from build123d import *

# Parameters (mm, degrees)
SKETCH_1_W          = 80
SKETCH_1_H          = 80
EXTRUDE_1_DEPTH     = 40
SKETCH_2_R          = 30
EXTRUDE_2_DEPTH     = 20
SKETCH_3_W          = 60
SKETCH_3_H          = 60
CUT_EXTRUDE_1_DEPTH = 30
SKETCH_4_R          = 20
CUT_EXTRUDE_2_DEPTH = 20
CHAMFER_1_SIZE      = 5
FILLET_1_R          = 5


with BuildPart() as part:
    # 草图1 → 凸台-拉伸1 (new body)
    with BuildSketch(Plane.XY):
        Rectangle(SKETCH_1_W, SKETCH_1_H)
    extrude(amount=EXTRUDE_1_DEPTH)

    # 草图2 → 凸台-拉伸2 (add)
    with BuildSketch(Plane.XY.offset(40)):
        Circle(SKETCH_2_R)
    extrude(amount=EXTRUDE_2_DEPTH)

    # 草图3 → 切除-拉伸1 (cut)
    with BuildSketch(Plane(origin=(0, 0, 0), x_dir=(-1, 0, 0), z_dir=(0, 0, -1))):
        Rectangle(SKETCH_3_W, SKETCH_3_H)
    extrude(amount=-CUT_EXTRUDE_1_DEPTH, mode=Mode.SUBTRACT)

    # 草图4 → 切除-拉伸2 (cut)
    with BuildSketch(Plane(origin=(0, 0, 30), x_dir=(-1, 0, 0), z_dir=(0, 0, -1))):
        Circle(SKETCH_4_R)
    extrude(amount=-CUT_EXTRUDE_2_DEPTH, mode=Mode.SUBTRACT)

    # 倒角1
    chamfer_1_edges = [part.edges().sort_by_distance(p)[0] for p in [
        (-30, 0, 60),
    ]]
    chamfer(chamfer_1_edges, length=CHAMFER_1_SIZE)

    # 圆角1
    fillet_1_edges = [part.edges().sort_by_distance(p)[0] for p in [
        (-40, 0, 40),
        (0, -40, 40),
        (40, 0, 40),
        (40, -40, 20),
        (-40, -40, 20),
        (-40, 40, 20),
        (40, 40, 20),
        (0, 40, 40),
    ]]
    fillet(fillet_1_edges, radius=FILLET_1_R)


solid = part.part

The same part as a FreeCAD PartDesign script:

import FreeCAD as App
import Part
import Sketcher


def edges_at(feature, points):
    """Names of the edges that pass closest to the given points."""
    edges = feature.Shape.Edges
    near = lambda p: min(range(len(edges)), key=lambda i: edges[i].distToShape(Part.Vertex(*p))[0])
    return sorted({f"Edge{near(p) + 1}" for p in points})


def add_polygon(sketch, points):
    """Adds a closed chain of lines whose ends are joined by coincident constraints."""
    first, n = sketch.GeometryCount, len(points)
    for a, b in zip(points, points[1:] + points[:1]):
        sketch.addGeometry(Part.LineSegment(App.Vector(*a, 0), App.Vector(*b, 0)), False)
    for i in range(n):
        sketch.addConstraint(Sketcher.Constraint("Coincident", first + i, 2, first + (i + 1) % n, 1))

doc = App.newDocument("Part")
body = doc.addObject("PartDesign::Body", "Body")

sketch1 = doc.addObject("Sketcher::SketchObject", "Sketch")
body.addObject(sketch1)
sketch1.AttachmentSupport = (doc.XY_Plane, [""])
sketch1.MapMode = "FlatFace"
add_polygon(sketch1, [(-40, 40), (-40, -40), (40, -40), (40, 40)])
sketch1.addConstraint([
    Sketcher.Constraint("Vertical", 0),
    Sketcher.Constraint("Horizontal", 1),
    Sketcher.Constraint("Vertical", 2),
    Sketcher.Constraint("Horizontal", 3),
    Sketcher.Constraint("Symmetric", 0, 2, 2, 2, -1, 1),
    Sketcher.Constraint("Equal", 3, 0),
    Sketcher.Constraint("DistanceX", 1, 1, 1, 2, 80.0),
])
pad1 = doc.addObject("PartDesign::Pad", "Pad")
body.addObject(pad1)
pad1.Profile = sketch1
pad1.Length = 40

sketch2 = doc.addObject("Sketcher::SketchObject", "Sketch001")
body.addObject(sketch2)
sketch2.AttachmentSupport = (doc.XY_Plane, [""])
sketch2.MapMode = "FlatFace"
sketch2.AttachmentOffset = App.Placement(App.Vector(0, 0, 40), App.Rotation())
sketch2.addGeometry(Part.Circle(App.Vector(0, 0, 0), App.Vector(0, 0, 1), 30), False)
sketch2.addConstraint([
    Sketcher.Constraint("Coincident", 0, 3, -1, 1),
    Sketcher.Constraint("Diameter", 0, 60.0),
])
pad2 = doc.addObject("PartDesign::Pad", "Pad001")
body.addObject(pad2)
pad2.Profile = sketch2
pad2.Length = 20

sketch3 = doc.addObject("Sketcher::SketchObject", "Sketch002")
body.addObject(sketch3)
sketch3.AttachmentSupport = (doc.XY_Plane, [""])
sketch3.MapMode = "FlatFace"
add_polygon(sketch3, [(30, 30), (30, -30), (-30, -30), (-30, 30)])
sketch3.addConstraint([
    Sketcher.Constraint("Vertical", 0),
    Sketcher.Constraint("Horizontal", 1),
    Sketcher.Constraint("Vertical", 2),
    Sketcher.Constraint("Horizontal", 3),
    Sketcher.Constraint("Symmetric", 0, 2, 2, 2, -1, 1),
    Sketcher.Constraint("Equal", 3, 0),
    Sketcher.Constraint("DistanceX", 1, 2, 1, 1, 60.0),
])
pocket1 = doc.addObject("PartDesign::Pocket", "Pocket")
body.addObject(pocket1)
pocket1.Profile = sketch3
pocket1.Length = 30
pocket1.Reversed = True

sketch4 = doc.addObject("Sketcher::SketchObject", "Sketch003")
body.addObject(sketch4)
sketch4.AttachmentSupport = (doc.XY_Plane, [""])
sketch4.MapMode = "FlatFace"
sketch4.AttachmentOffset = App.Placement(App.Vector(0, 0, 30), App.Rotation())
sketch4.addGeometry(Part.Circle(App.Vector(0, 0, 0), App.Vector(0, 0, 1), 20), False)
sketch4.addConstraint([
    Sketcher.Constraint("Coincident", 0, 3, -1, 1),
    Sketcher.Constraint("Diameter", 0, 40.0),
])
pocket2 = doc.addObject("PartDesign::Pocket", "Pocket001")
body.addObject(pocket2)
pocket2.Profile = sketch4
pocket2.Length = 20
pocket2.Reversed = True
doc.recompute()

chamfer = doc.addObject("PartDesign::Chamfer", "Chamfer")
body.addObject(chamfer)
chamfer.Base = (pocket2, edges_at(pocket2, [(-30, 0, 60)]))
chamfer.Size = 5
doc.recompute()

fillet = doc.addObject("PartDesign::Fillet", "Fillet")
body.addObject(fillet)
fillet.Base = (chamfer, edges_at(chamfer, [
    (-40, 0, 40),
    (0, -40, 40),
    (40, 0, 40),
    (40, -40, 20),
    (-40, -40, 20),
    (-40, 40, 20),
    (40, 40, 20),
    (0, 40, 40),
]))
fillet.Radius = 5

doc.recompute()
